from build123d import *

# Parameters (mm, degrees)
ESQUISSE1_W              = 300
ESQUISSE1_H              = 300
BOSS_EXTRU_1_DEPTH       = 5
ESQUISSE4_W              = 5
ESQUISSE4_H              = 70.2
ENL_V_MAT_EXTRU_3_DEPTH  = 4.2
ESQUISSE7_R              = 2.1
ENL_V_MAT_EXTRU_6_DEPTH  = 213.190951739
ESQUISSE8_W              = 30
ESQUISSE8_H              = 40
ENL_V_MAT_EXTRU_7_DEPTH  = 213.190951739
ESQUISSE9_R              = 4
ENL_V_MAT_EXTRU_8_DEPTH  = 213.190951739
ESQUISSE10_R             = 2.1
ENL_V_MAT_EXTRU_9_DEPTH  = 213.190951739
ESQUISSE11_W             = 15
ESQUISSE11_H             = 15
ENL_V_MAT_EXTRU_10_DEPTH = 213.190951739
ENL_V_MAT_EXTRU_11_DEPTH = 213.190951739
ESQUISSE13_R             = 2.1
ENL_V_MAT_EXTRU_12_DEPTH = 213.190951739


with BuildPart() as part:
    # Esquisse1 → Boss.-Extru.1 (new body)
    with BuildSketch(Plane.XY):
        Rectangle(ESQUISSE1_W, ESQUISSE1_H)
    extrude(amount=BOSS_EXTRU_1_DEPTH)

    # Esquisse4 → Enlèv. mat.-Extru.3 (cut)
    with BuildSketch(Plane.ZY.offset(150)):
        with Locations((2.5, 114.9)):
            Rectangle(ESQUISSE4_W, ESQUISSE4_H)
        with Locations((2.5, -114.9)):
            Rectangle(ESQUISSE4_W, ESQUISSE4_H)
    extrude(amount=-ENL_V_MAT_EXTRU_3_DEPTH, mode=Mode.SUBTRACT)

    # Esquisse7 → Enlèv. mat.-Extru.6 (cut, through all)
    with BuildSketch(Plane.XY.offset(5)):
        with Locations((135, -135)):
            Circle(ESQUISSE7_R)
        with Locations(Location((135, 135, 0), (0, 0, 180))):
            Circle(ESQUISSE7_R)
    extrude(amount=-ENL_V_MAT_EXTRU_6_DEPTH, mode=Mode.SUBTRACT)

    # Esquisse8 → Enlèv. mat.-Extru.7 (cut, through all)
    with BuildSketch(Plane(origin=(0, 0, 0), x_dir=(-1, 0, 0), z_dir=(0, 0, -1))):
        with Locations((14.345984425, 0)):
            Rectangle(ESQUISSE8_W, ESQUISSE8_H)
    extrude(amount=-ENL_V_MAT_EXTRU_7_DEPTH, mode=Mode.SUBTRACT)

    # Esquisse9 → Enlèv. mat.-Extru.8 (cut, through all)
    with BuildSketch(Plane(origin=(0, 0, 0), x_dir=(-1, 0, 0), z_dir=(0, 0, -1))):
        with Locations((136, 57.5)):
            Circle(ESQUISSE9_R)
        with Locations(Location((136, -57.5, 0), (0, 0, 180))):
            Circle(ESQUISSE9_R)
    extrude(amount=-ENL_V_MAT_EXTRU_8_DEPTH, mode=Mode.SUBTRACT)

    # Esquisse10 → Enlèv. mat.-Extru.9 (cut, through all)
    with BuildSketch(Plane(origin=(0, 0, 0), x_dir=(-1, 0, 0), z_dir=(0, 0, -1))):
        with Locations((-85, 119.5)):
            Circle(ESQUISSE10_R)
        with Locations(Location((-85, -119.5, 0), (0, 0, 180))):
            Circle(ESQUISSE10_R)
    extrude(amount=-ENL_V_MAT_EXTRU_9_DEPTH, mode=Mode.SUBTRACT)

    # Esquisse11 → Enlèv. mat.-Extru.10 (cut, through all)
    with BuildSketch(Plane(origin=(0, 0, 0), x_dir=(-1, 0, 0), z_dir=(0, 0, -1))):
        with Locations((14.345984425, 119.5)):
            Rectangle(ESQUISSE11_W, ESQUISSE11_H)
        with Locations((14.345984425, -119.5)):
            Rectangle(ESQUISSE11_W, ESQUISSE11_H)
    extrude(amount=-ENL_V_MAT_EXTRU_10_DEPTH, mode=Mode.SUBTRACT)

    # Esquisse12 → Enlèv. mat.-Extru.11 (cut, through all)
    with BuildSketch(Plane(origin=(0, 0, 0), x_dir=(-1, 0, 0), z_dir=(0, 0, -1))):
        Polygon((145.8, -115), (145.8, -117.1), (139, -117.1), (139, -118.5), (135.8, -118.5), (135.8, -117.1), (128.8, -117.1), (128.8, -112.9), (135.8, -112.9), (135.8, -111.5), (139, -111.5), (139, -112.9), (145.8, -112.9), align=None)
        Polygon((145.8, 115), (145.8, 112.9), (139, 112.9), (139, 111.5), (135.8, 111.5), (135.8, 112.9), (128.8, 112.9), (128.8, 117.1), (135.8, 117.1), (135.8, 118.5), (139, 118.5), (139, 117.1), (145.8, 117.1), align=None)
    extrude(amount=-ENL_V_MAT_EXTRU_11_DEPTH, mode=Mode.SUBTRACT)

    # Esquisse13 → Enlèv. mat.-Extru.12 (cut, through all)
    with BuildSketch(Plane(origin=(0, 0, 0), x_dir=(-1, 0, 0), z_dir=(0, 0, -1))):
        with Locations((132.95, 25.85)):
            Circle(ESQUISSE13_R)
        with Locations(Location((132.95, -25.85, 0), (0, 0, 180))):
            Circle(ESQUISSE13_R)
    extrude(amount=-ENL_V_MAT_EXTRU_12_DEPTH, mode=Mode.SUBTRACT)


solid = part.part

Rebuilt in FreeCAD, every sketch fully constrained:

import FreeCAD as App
import Part
import Sketcher
from FreeCAD import Vector
Q = App.Units.Quantity

doc = App.newDocument("Part")
body = doc.addObject("PartDesign::Body", "Body")

# Sketch on XY plane
sketch1 = body.newObject("Sketcher::SketchObject", "Sketch")
sketch1.AttachmentSupport = (doc.getObject("XY_Plane"), [""])
sketch1.MapMode = "FlatFace"
sketch1.addGeometry([
    Part.LineSegment(Vector(-150, 150, 0), Vector(-150, -150, 0)),
    Part.LineSegment(Vector(-150, -150, 0), Vector(150, -150, 0)),
    Part.LineSegment(Vector(150, -150, 0), Vector(150, 150, 0)),
    Part.LineSegment(Vector(150, 150, 0), Vector(-150, 150, 0)),
], False)
sketch1.addConstraint([
    Sketcher.Constraint("Coincident", 0, 2, 1, 1),
    Sketcher.Constraint("Coincident", 1, 2, 2, 1),
    Sketcher.Constraint("Coincident", 2, 2, 3, 1),
    Sketcher.Constraint("Coincident", 3, 2, 0, 1),
    Sketcher.Constraint("Vertical", 0),
    Sketcher.Constraint("Horizontal", 1),
    Sketcher.Constraint("Vertical", 2),
    Sketcher.Constraint("Horizontal", 3),
    Sketcher.Constraint("Symmetric", 0, 2, 2, 2, -1, 1),
    Sketcher.Constraint("Equal", 3, 0),
    Sketcher.Constraint("DistanceX", 1, 1, 1, 2, Q("300 mm")),
])
pad1 = body.newObject("PartDesign::Pad", "Pad")
pad1.Profile = sketch1
pad1.Length = 5

# Sketch on YZ plane
sketch2 = body.newObject("Sketcher::SketchObject", "Sketch001")
sketch2.AttachmentSupport = (doc.getObject("YZ_Plane"), [""])
sketch2.MapMode = "FlatFace"
sketch2.AttachmentOffset = App.Placement(Vector(0, 0, -150), App.Rotation())
sketch2.addGeometry([
    Part.LineSegment(Vector(150, 0, 0), Vector(80, 0, 0)),  # 0
    Part.LineSegment(Vector(80, 0, 0), Vector(80, 5, 0)),  # 1
    Part.LineSegment(Vector(80, 5, 0), Vector(150, 5, 0)),  # 2
    Part.LineSegment(Vector(150, 5, 0), Vector(150, 0, 0)),  # 3
    Part.LineSegment(Vector(-80, 0, 0), Vector(-150, 0, 0)),  # 4
    Part.LineSegment(Vector(-150, 0, 0), Vector(-150, 5, 0)),  # 5
    Part.LineSegment(Vector(-150, 5, 0), Vector(-80, 5, 0)),  # 6
    Part.LineSegment(Vector(-80, 5, 0), Vector(-80, 0, 0)),  # 7
], False)
sketch2.addConstraint([
    Sketcher.Constraint("Coincident", 0, 2, 1, 1),
    Sketcher.Constraint("Coincident", 1, 2, 2, 1),
    Sketcher.Constraint("Coincident", 2, 2, 3, 1),
    Sketcher.Constraint("Coincident", 3, 2, 0, 1),
    Sketcher.Constraint("Coincident", 4, 2, 5, 1),
    Sketcher.Constraint("Coincident", 5, 2, 6, 1),
    Sketcher.Constraint("Coincident", 6, 2, 7, 1),
    Sketcher.Constraint("Coincident", 7, 2, 4, 1),
    Sketcher.Constraint("Horizontal", 0),
    Sketcher.Constraint("Vertical", 1),
    Sketcher.Constraint("Horizontal", 2),
    Sketcher.Constraint("Vertical", 3),
    Sketcher.Constraint("Horizontal", 4),
    Sketcher.Constraint("Vertical", 5),
    Sketcher.Constraint("Horizontal", 6),
    Sketcher.Constraint("Vertical", 7),
    Sketcher.Constraint("Symmetric", 3, 2, 4, 2, -1, 1),
    Sketcher.Constraint("Symmetric", 1, 2, 6, 2, -2),
    Sketcher.Constraint("PointOnObject", 0, 2, -1),
    Sketcher.Constraint("DistanceY", 1, 1, 1, 2, Q("5 mm")),
    Sketcher.Constraint("DistanceX", 0, 2, 0, 1, Q("70.2 mm")),
    Sketcher.Constraint("DistanceX", -1, 1, 2, 2, Q("150 mm")),
])
pocket1 = body.newObject("PartDesign::Pocket", "Pocket")
pocket1.Profile = sketch2
pocket1.Length = 4.2
pocket1.Reversed = True

# Sketch on XY plane
sketch3 = body.newObject("Sketcher::SketchObject", "Sketch002")
sketch3.AttachmentSupport = (doc.getObject("XY_Plane"), [""])
sketch3.MapMode = "FlatFace"
sketch3.AttachmentOffset = App.Placement(Vector(0, 0, 5), App.Rotation())
sketch3.addGeometry([
    Part.Circle(Vector(135, -135, 0), Vector(0, 0, 1), 2.1),
    Part.Circle(Vector(135, 135, 0), Vector(0, 0, 1), 2.1),
], False)
sketch3.addConstraint([
    Sketcher.Constraint("Equal", 0, 1),
    Sketcher.Constraint("Symmetric", 0, 3, 1, 3, -1),
    Sketcher.Constraint("Diameter", 0, Q("4.2 mm")),
    Sketcher.Constraint("DistanceX", -1, 1, 0, 3, Q("135 mm")),
    Sketcher.Constraint("DistanceY", 0, 3, -1, 1, Q("135 mm")),
])
pocket2 = body.newObject("PartDesign::Pocket", "Pocket001")
pocket2.Profile = sketch3
pocket2.Type = "ThroughAll"

# Sketch on XY plane
sketch4 = body.newObject("Sketcher::SketchObject", "Sketch003")
sketch4.AttachmentSupport = (doc.getObject("XY_Plane"), [""])
sketch4.MapMode = "FlatFace"
sketch4.addGeometry([
    Part.LineSegment(Vector(1, 20, 0), Vector(1, -20, 0)),
    Part.LineSegment(Vector(1, -20, 0), Vector(-29, -20, 0)),
    Part.LineSegment(Vector(-29, -20, 0), Vector(-29, 20, 0)),
    Part.LineSegment(Vector(-29, 20, 0), Vector(1, 20, 0)),
], False)
sketch4.addConstraint([
    Sketcher.Constraint("Coincident", 0, 2, 1, 1),
    Sketcher.Constraint("Coincident", 1, 2, 2, 1),
    Sketcher.Constraint("Coincident", 2, 2, 3, 1),
    Sketcher.Constraint("Coincident", 3, 2, 0, 1),
    Sketcher.Constraint("Vertical", 0),
    Sketcher.Constraint("Horizontal", 1),
    Sketcher.Constraint("Vertical", 2),
    Sketcher.Constraint("Horizontal", 3),
    Sketcher.Constraint("DistanceX", 1, 2, 1, 1, Q("30 mm")),
    Sketcher.Constraint("DistanceY", 0, 2, 0, 1, Q("40 mm")),
    Sketcher.Constraint("DistanceY", 0, 2, -1, 1, Q("20 mm")),
    Sketcher.Constraint("DistanceX", -1, 1, 0, 2, Q("0.654016 mm")),
])
pocket3 = body.newObject("PartDesign::Pocket", "Pocket002")
pocket3.Profile = sketch4
pocket3.Type = "ThroughAll"
pocket3.Reversed = True

# Sketch on XY plane
sketch5 = body.newObject("Sketcher::SketchObject", "Sketch004")
sketch5.AttachmentSupport = (doc.getObject("XY_Plane"), [""])
sketch5.MapMode = "FlatFace"
sketch5.addGeometry([
    Part.Circle(Vector(-136, 57.5, 0), Vector(0, 0, 1), 4),
    Part.Circle(Vector(-136, -57.5, 0), Vector(0, 0, 1), 4),
], False)
sketch5.addConstraint([
    Sketcher.Constraint("Equal", 0, 1),
    Sketcher.Constraint("Symmetric", 0, 3, 1, 3, -1),
    Sketcher.Constraint("Diameter", 0, Q("8 mm")),
    Sketcher.Constraint("DistanceX", 0, 3, -1, 1, Q("136 mm")),
    Sketcher.Constraint("DistanceY", 1, 3, 0, 3, Q("115 mm")),
])
pocket4 = body.newObject("PartDesign::Pocket", "Pocket003")
pocket4.Profile = sketch5
pocket4.Type = "ThroughAll"
pocket4.Reversed = True

# Sketch on XY plane
sketch6 = body.newObject("Sketcher::SketchObject", "Sketch005")
sketch6.AttachmentSupport = (doc.getObject("XY_Plane"), [""])
sketch6.MapMode = "FlatFace"
sketch6.addGeometry([
    Part.Circle(Vector(85, 119.5, 0), Vector(0, 0, 1), 2.1),
    Part.Circle(Vector(85, -119.5, 0), Vector(0, 0, 1), 2.1),
], False)
sketch6.addConstraint([
    Sketcher.Constraint("Equal", 0, 1),
    Sketcher.Constraint("Symmetric", 0, 3, 1, 3, -1),
    Sketcher.Constraint("Diameter", 0, Q("4.2 mm")),
    Sketcher.Constraint("DistanceX", -1, 1, 0, 3, Q("85 mm")),
    Sketcher.Constraint("DistanceY", 1, 3, 0, 3, Q("239 mm")),
])
pocket5 = body.newObject("PartDesign::Pocket", "Pocket004")
pocket5.Profile = sketch6
pocket5.Type = "ThroughAll"
pocket5.Reversed = True

# Sketch on XY plane
sketch7 = body.newObject("Sketcher::SketchObject", "Sketch006")
sketch7.AttachmentSupport = (doc.getObject("XY_Plane"), [""])
sketch7.MapMode = "FlatFace"
sketch7.addGeometry([
    Part.LineSegment(Vector(-7, 127, 0), Vector(-7, 112, 0)),  # 0
    Part.LineSegment(Vector(-7, 112, 0), Vector(-22, 112, 0)),  # 1
    Part.LineSegment(Vector(-22, 112, 0), Vector(-22, 127, 0)),  # 2
    Part.LineSegment(Vector(-22, 127, 0), Vector(-7, 127, 0)),  # 3
    Part.LineSegment(Vector(-7, -112, 0), Vector(-7, -127, 0)),  # 4
    Part.LineSegment(Vector(-7, -127, 0), Vector(-22, -127, 0)),  # 5
    Part.LineSegment(Vector(-22, -127, 0), Vector(-22, -112, 0)),  # 6
    Part.LineSegment(Vector(-22, -112, 0), Vector(-7, -112, 0)),  # 7
], False)
sketch7.addConstraint([
    Sketcher.Constraint("Coincident", 0, 2, 1, 1),
    Sketcher.Constraint("Coincident", 1, 2, 2, 1),
    Sketcher.Constraint("Coincident", 2, 2, 3, 1),
    Sketcher.Constraint("Coincident", 3, 2, 0, 1),
    Sketcher.Constraint("Coincident", 4, 2, 5, 1),
    Sketcher.Constraint("Coincident", 5, 2, 6, 1),
    Sketcher.Constraint("Coincident", 6, 2, 7, 1),
    Sketcher.Constraint("Coincident", 7, 2, 4, 1),
    Sketcher.Constraint("Vertical", 0),
    Sketcher.Constraint("Horizontal", 1),
    Sketcher.Constraint("Vertical", 2),
    Sketcher.Constraint("Horizontal", 3),
    Sketcher.Constraint("Vertical", 4),
    Sketcher.Constraint("Horizontal", 5),
    Sketcher.Constraint("Vertical", 6),
    Sketcher.Constraint("Horizontal", 7),
    Sketcher.Constraint("Symmetric", 3, 2, 4, 2, -1),
    Sketcher.Constraint("Symmetric", 1, 2, 6, 2, -1),
    Sketcher.Constraint("Equal", 7, 0),
    Sketcher.Constraint("DistanceX", 1, 2, 1, 1, Q("15 mm")),
    Sketcher.Constraint("DistanceY", -1, 1, 0, 2, Q("112 mm")),
    Sketcher.Constraint("DistanceX", 0, 2, -1, 1, Q("6.845984 mm")),
])
pocket6 = body.newObject("PartDesign::Pocket", "Pocket005")
pocket6.Profile = sketch7
pocket6.Type = "ThroughAll"
pocket6.Reversed = True

# Sketch on XY plane
sketch8 = body.newObject("Sketcher::SketchObject", "Sketch007")
sketch8.AttachmentSupport = (doc.getObject("XY_Plane"), [""])
sketch8.MapMode = "FlatFace"
sketch8.addGeometry([
    Part.LineSegment(Vector(-145.8, -117.1, 0), Vector(-145.8, -112.9, 0)),  # 0
    Part.LineSegment(Vector(-145.8, -112.9, 0), Vector(-139, -112.9, 0)),  # 1
    Part.LineSegment(Vector(-139, -112.9, 0), Vector(-139, -111.5, 0)),  # 2
    Part.LineSegment(Vector(-139, -111.5, 0), Vector(-135.8, -111.5, 0)),  # 3
    Part.LineSegment(Vector(-135.8, -111.5, 0), Vector(-135.8, -112.9, 0)),  # 4
    Part.LineSegment(Vector(-135.8, -112.9, 0), Vector(-128.8, -112.9, 0)),  # 5
    Part.LineSegment(Vector(-128.8, -112.9, 0), Vector(-128.8, -117.1, 0)),  # 6
    Part.LineSegment(Vector(-128.8, -117.1, 0), Vector(-135.8, -117.1, 0)),  # 7
    Part.LineSegment(Vector(-135.8, -117.1, 0), Vector(-135.8, -118.5, 0)),  # 8
    Part.LineSegment(Vector(-135.8, -118.5, 0), Vector(-139, -118.5, 0)),  # 9
    Part.LineSegment(Vector(-139, -118.5, 0), Vector(-139, -117.1, 0)),  # 10
    Part.LineSegment(Vector(-139, -117.1, 0), Vector(-145.8, -117.1, 0)),  # 11
    Part.LineSegment(Vector(-145.8, 112.9, 0), Vector(-145.8, 117.1, 0)),  # 12
    Part.LineSegment(Vector(-145.8, 117.1, 0), Vector(-139, 117.1, 0)),  # 13
    Part.LineSegment(Vector(-139, 117.1, 0), Vector(-139, 118.5, 0)),  # 14
    Part.LineSegment(Vector(-139, 118.5, 0), Vector(-135.8, 118.5, 0)),  # 15
    Part.LineSegment(Vector(-135.8, 118.5, 0), Vector(-135.8, 117.1, 0)),  # 16
    Part.LineSegment(Vector(-135.8, 117.1, 0), Vector(-128.8, 117.1, 0)),  # 17
    Part.LineSegment(Vector(-128.8, 117.1, 0), Vector(-128.8, 112.9, 0)),  # 18
    Part.LineSegment(Vector(-128.8, 112.9, 0), Vector(-135.8, 112.9, 0)),  # 19
    Part.LineSegment(Vector(-135.8, 112.9, 0), Vector(-135.8, 111.5, 0)),  # 20
    Part.LineSegment(Vector(-135.8, 111.5, 0), Vector(-139, 111.5, 0)),  # 21
    Part.LineSegment(Vector(-139, 111.5, 0), Vector(-139, 112.9, 0)),  # 22
    Part.LineSegment(Vector(-139, 112.9, 0), Vector(-145.8, 112.9, 0)),  # 23
], False)
sketch8.addConstraint([
    Sketcher.Constraint("Coincident", 0, 2, 1, 1),
    Sketcher.Constraint("Coincident", 1, 2, 2, 1),
    Sketcher.Constraint("Coincident", 2, 2, 3, 1),
    Sketcher.Constraint("Coincident", 3, 2, 4, 1),
    Sketcher.Constraint("Coincident", 4, 2, 5, 1),
    Sketcher.Constraint("Coincident", 5, 2, 6, 1),
    Sketcher.Constraint("Coincident", 6, 2, 7, 1),
    Sketcher.Constraint("Coincident", 7, 2, 8, 1),
    Sketcher.Constraint("Coincident", 8, 2, 9, 1),
    Sketcher.Constraint("Coincident", 9, 2, 10, 1),
    Sketcher.Constraint("Coincident", 10, 2, 11, 1),
    Sketcher.Constraint("Coincident", 11, 2, 0, 1),
    Sketcher.Constraint("Coincident", 12, 2, 13, 1),
    Sketcher.Constraint("Coincident", 13, 2, 14, 1),
    Sketcher.Constraint("Coincident", 14, 2, 15, 1),
    Sketcher.Constraint("Coincident", 15, 2, 16, 1),
    Sketcher.Constraint("Coincident", 16, 2, 17, 1),
    Sketcher.Constraint("Coincident", 17, 2, 18, 1),
    Sketcher.Constraint("Coincident", 18, 2, 19, 1),
    Sketcher.Constraint("Coincident", 19, 2, 20, 1),
    Sketcher.Constraint("Coincident", 20, 2, 21, 1),
    Sketcher.Constraint("Coincident", 21, 2, 22, 1),
    Sketcher.Constraint("Coincident", 22, 2, 23, 1),
    Sketcher.Constraint("Coincident", 23, 2, 12, 1),
    Sketcher.Constraint("Vertical", 0),
    Sketcher.Constraint("Horizontal", 1),
    Sketcher.Constraint("Vertical", 2),
    Sketcher.Constraint("Horizontal", 3),
    Sketcher.Constraint("Vertical", 4),
    Sketcher.Constraint("Horizontal", 5),
    Sketcher.Constraint("Vertical", 6),
    Sketcher.Constraint("Horizontal", 7),
    Sketcher.Constraint("Vertical", 8),
    Sketcher.Constraint("Horizontal", 9),
    Sketcher.Constraint("Vertical", 10),
    Sketcher.Constraint("Horizontal", 11),
    Sketcher.Constraint("Vertical", 12),
    Sketcher.Constraint("Horizontal", 13),
    Sketcher.Constraint("Vertical", 14),
    Sketcher.Constraint("Horizontal", 15),
    Sketcher.Constraint("Vertical", 16),
    Sketcher.Constraint("Horizontal", 17),
    Sketcher.Constraint("Vertical", 18),
    Sketcher.Constraint("Horizontal", 19),
    Sketcher.Constraint("Vertical", 20),
    Sketcher.Constraint("Horizontal", 21),
    Sketcher.Constraint("Vertical", 22),
    Sketcher.Constraint("Horizontal", 23),
    Sketcher.Constraint("Symmetric", 11, 2, 12, 2, -1),
    Sketcher.Constraint("Symmetric", 9, 2, 14, 2, -1),
    Sketcher.Constraint("Symmetric", 7, 2, 16, 2, -1),
    Sketcher.Constraint("Symmetric", 5, 2, 18, 2, -1),
    Sketcher.Constraint("Symmetric", 3, 2, 20, 2, -1),
    Sketcher.Constraint("Symmetric", 1, 2, 22, 2, -1),
    Sketcher.Constraint("Horizontal", 1, 2, 4, 2),
    Sketcher.Constraint("Horizontal", 7, 2, 10, 2),
    Sketcher.Constraint("Vertical", 4, 2, 7, 2),
    Sketcher.Constraint("Vertical", 2, 2, 9, 2),
    Sketcher.Constraint("Equal", 4, 8),
    Sketcher.Constraint("DistanceX", 5, 1, 5, 2, Q("7 mm")),
    Sketcher.Constraint("DistanceX", 1, 1, 1, 2, Q("6.8 mm")),
    Sketcher.Constraint("DistanceX", 3, 1, 3, 2, Q("3.2 mm")),
    Sketcher.Constraint("DistanceY", 0, 1, 0, 2, Q("4.2 mm")),
    Sketcher.Constraint("DistanceY", 2, 1, 2, 2, Q("1.4 mm")),
    Sketcher.Constraint("DistanceX", 1, 2, -1, 1, Q("139 mm")),
    Sketcher.Constraint("DistanceY", 0, 2, 12, 2, Q("230 mm")),
])
pocket7 = body.newObject("PartDesign::Pocket", "Pocket006")
pocket7.Profile = sketch8
pocket7.Type = "ThroughAll"
pocket7.Reversed = True

# Sketch on XY plane
sketch9 = body.newObject("Sketcher::SketchObject", "Sketch008")
sketch9.AttachmentSupport = (doc.getObject("XY_Plane"), [""])
sketch9.MapMode = "FlatFace"
sketch9.addGeometry([
    Part.Circle(Vector(-132.9, 25.9, 0), Vector(0, 0, 1), 2.1),
    Part.Circle(Vector(-132.9, -25.9, 0), Vector(0, 0, 1), 2.1),
], False)
sketch9.addConstraint([
    Sketcher.Constraint("Equal", 0, 1),
    Sketcher.Constraint("Symmetric", 0, 3, 1, 3, -1),
    Sketcher.Constraint("Diameter", 0, Q("4.2 mm")),
    Sketcher.Constraint("DistanceY", 1, 3, 0, 3, Q("51.7 mm")),
    Sketcher.Constraint("DistanceX", 0, 3, -1, 1, Q("132.95 mm")),
])
pocket8 = body.newObject("PartDesign::Pocket", "Pocket007")
pocket8.Profile = sketch9
pocket8.Type = "ThroughAll"
pocket8.Reversed = True

doc.recompute()
